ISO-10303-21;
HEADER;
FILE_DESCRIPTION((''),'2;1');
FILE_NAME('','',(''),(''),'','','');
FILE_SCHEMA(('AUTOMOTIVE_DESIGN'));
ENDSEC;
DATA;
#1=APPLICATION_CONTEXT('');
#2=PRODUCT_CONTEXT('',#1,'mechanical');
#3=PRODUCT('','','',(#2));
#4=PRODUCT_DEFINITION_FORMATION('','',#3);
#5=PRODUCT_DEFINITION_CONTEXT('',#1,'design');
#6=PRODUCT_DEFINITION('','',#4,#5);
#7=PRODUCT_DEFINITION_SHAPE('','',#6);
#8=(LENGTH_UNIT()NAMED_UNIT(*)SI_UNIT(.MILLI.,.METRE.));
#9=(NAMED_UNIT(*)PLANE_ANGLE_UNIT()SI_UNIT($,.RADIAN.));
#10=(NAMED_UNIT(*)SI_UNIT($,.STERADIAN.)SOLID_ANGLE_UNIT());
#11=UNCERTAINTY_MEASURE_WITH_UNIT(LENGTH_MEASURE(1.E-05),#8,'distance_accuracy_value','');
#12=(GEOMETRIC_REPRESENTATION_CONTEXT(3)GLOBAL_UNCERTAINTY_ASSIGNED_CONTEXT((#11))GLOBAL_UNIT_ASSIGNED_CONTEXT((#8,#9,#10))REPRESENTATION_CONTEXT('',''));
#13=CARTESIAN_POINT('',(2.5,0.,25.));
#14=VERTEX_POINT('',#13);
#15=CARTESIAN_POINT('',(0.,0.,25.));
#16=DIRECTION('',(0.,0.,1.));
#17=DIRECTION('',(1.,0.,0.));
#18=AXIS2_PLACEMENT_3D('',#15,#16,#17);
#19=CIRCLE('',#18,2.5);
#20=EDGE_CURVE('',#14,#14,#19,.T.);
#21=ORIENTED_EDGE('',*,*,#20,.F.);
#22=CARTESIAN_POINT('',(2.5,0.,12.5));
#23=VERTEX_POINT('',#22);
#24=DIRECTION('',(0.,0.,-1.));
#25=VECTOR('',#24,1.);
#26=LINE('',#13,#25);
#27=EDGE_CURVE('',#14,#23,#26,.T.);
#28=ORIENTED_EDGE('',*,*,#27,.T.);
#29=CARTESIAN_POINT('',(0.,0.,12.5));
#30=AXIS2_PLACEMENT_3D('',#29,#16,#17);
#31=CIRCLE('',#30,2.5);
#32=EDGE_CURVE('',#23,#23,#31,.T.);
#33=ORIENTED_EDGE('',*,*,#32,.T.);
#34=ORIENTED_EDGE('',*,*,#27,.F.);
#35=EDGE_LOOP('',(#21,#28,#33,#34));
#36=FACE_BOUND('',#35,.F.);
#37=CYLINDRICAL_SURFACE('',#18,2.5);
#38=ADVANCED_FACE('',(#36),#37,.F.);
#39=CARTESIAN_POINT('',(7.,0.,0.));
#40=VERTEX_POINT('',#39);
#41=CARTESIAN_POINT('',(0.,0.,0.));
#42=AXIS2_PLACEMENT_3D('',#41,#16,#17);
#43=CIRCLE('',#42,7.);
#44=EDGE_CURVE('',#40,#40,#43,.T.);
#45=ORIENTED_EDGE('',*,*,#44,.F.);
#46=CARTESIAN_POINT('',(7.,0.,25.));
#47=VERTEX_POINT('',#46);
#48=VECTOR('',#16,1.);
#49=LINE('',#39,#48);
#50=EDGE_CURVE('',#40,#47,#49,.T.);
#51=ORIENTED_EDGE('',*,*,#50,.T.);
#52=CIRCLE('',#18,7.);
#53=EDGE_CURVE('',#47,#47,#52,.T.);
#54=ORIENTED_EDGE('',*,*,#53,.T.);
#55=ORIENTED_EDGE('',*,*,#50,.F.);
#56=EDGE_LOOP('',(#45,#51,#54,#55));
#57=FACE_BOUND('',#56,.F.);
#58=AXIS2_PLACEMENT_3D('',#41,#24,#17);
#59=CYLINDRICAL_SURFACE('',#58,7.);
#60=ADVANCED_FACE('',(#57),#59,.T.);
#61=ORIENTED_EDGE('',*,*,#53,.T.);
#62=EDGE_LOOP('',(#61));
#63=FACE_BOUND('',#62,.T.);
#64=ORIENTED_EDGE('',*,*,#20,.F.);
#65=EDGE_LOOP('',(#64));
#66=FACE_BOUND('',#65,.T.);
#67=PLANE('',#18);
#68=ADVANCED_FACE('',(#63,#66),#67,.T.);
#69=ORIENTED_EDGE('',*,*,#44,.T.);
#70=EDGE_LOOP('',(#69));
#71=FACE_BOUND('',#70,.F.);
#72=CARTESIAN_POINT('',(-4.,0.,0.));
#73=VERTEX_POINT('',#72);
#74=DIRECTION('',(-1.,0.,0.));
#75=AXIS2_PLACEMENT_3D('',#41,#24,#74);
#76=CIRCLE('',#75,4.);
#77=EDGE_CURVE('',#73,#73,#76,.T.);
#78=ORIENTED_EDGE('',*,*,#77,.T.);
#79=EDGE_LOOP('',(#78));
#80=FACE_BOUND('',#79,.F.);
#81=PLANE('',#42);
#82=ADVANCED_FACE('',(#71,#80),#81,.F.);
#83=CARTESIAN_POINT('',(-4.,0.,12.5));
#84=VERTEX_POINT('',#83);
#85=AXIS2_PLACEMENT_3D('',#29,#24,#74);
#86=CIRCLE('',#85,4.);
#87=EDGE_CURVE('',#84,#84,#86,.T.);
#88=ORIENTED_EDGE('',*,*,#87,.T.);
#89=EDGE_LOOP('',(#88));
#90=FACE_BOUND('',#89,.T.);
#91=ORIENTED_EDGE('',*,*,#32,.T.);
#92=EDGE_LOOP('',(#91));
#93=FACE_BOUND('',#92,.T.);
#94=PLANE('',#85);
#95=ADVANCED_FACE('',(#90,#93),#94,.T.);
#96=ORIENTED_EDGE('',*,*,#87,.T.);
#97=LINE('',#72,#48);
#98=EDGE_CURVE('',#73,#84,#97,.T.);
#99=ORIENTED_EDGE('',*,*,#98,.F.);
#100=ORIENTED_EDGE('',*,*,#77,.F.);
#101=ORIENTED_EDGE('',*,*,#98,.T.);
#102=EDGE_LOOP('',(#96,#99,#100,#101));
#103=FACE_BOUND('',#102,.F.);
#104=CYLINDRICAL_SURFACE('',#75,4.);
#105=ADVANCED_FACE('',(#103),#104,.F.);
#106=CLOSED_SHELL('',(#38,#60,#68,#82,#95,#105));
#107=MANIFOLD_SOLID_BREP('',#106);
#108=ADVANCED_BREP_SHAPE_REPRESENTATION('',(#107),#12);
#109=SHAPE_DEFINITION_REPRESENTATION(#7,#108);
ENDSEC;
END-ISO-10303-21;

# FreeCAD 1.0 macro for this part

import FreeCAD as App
import Part
import Sketcher

doc = App.newDocument("Part")
body = doc.addObject("PartDesign::Body", "Body")

sketch1 = doc.addObject("Sketcher::SketchObject", "Sketch")
body.addObject(sketch1)
sketch1.AttachmentSupport = (doc.XY_Plane, [""])
sketch1.MapMode = "FlatFace"
sketch1.addGeometry(Part.Circle(App.Vector(0, 0, 0), App.Vector(0, 0, 1), 7), False)
sketch1.addConstraint([
    Sketcher.Constraint("Coincident", 0, 3, -1, 1),
    Sketcher.Constraint("Diameter", 0, 14.0),
])
pad1 = doc.addObject("PartDesign::Pad", "Pad")
body.addObject(pad1)
pad1.Profile = sketch1
pad1.Length = 25

sketch2 = doc.addObject("Sketcher::SketchObject", "Sketch001")
body.addObject(sketch2)
sketch2.AttachmentSupport = (doc.XY_Plane, [""])
sketch2.MapMode = "FlatFace"
sketch2.AttachmentOffset = App.Placement(App.Vector(0, 0, 25), App.Rotation())
sketch2.addGeometry(Part.Circle(App.Vector(0, 0, 0), App.Vector(0, 0, 1), 2.5), False)
sketch2.addConstraint([
    Sketcher.Constraint("Coincident", 0, 3, -1, 1),
    Sketcher.Constraint("Diameter", 0, 5.0),
])
pocket1 = doc.addObject("PartDesign::Pocket", "Pocket")
body.addObject(pocket1)
pocket1.Profile = sketch2
pocket1.Length = 25

sketch3 = doc.addObject("Sketcher::SketchObject", "Sketch002")
body.addObject(sketch3)
sketch3.AttachmentSupport = (doc.XY_Plane, [""])
sketch3.MapMode = "FlatFace"
sketch3.addGeometry(Part.Circle(App.Vector(0, 0, 0), App.Vector(0, 0, 1), 4), False)
sketch3.addConstraint([
    Sketcher.Constraint("Coincident", 0, 3, -1, 1),
    Sketcher.Constraint("Diameter", 0, 8.0),
])
pocket2 = doc.addObject("PartDesign::Pocket", "Pocket001")
body.addObject(pocket2)
pocket2.Profile = sketch3
pocket2.Length = 12.5
pocket2.Reversed = True

doc.recompute()
